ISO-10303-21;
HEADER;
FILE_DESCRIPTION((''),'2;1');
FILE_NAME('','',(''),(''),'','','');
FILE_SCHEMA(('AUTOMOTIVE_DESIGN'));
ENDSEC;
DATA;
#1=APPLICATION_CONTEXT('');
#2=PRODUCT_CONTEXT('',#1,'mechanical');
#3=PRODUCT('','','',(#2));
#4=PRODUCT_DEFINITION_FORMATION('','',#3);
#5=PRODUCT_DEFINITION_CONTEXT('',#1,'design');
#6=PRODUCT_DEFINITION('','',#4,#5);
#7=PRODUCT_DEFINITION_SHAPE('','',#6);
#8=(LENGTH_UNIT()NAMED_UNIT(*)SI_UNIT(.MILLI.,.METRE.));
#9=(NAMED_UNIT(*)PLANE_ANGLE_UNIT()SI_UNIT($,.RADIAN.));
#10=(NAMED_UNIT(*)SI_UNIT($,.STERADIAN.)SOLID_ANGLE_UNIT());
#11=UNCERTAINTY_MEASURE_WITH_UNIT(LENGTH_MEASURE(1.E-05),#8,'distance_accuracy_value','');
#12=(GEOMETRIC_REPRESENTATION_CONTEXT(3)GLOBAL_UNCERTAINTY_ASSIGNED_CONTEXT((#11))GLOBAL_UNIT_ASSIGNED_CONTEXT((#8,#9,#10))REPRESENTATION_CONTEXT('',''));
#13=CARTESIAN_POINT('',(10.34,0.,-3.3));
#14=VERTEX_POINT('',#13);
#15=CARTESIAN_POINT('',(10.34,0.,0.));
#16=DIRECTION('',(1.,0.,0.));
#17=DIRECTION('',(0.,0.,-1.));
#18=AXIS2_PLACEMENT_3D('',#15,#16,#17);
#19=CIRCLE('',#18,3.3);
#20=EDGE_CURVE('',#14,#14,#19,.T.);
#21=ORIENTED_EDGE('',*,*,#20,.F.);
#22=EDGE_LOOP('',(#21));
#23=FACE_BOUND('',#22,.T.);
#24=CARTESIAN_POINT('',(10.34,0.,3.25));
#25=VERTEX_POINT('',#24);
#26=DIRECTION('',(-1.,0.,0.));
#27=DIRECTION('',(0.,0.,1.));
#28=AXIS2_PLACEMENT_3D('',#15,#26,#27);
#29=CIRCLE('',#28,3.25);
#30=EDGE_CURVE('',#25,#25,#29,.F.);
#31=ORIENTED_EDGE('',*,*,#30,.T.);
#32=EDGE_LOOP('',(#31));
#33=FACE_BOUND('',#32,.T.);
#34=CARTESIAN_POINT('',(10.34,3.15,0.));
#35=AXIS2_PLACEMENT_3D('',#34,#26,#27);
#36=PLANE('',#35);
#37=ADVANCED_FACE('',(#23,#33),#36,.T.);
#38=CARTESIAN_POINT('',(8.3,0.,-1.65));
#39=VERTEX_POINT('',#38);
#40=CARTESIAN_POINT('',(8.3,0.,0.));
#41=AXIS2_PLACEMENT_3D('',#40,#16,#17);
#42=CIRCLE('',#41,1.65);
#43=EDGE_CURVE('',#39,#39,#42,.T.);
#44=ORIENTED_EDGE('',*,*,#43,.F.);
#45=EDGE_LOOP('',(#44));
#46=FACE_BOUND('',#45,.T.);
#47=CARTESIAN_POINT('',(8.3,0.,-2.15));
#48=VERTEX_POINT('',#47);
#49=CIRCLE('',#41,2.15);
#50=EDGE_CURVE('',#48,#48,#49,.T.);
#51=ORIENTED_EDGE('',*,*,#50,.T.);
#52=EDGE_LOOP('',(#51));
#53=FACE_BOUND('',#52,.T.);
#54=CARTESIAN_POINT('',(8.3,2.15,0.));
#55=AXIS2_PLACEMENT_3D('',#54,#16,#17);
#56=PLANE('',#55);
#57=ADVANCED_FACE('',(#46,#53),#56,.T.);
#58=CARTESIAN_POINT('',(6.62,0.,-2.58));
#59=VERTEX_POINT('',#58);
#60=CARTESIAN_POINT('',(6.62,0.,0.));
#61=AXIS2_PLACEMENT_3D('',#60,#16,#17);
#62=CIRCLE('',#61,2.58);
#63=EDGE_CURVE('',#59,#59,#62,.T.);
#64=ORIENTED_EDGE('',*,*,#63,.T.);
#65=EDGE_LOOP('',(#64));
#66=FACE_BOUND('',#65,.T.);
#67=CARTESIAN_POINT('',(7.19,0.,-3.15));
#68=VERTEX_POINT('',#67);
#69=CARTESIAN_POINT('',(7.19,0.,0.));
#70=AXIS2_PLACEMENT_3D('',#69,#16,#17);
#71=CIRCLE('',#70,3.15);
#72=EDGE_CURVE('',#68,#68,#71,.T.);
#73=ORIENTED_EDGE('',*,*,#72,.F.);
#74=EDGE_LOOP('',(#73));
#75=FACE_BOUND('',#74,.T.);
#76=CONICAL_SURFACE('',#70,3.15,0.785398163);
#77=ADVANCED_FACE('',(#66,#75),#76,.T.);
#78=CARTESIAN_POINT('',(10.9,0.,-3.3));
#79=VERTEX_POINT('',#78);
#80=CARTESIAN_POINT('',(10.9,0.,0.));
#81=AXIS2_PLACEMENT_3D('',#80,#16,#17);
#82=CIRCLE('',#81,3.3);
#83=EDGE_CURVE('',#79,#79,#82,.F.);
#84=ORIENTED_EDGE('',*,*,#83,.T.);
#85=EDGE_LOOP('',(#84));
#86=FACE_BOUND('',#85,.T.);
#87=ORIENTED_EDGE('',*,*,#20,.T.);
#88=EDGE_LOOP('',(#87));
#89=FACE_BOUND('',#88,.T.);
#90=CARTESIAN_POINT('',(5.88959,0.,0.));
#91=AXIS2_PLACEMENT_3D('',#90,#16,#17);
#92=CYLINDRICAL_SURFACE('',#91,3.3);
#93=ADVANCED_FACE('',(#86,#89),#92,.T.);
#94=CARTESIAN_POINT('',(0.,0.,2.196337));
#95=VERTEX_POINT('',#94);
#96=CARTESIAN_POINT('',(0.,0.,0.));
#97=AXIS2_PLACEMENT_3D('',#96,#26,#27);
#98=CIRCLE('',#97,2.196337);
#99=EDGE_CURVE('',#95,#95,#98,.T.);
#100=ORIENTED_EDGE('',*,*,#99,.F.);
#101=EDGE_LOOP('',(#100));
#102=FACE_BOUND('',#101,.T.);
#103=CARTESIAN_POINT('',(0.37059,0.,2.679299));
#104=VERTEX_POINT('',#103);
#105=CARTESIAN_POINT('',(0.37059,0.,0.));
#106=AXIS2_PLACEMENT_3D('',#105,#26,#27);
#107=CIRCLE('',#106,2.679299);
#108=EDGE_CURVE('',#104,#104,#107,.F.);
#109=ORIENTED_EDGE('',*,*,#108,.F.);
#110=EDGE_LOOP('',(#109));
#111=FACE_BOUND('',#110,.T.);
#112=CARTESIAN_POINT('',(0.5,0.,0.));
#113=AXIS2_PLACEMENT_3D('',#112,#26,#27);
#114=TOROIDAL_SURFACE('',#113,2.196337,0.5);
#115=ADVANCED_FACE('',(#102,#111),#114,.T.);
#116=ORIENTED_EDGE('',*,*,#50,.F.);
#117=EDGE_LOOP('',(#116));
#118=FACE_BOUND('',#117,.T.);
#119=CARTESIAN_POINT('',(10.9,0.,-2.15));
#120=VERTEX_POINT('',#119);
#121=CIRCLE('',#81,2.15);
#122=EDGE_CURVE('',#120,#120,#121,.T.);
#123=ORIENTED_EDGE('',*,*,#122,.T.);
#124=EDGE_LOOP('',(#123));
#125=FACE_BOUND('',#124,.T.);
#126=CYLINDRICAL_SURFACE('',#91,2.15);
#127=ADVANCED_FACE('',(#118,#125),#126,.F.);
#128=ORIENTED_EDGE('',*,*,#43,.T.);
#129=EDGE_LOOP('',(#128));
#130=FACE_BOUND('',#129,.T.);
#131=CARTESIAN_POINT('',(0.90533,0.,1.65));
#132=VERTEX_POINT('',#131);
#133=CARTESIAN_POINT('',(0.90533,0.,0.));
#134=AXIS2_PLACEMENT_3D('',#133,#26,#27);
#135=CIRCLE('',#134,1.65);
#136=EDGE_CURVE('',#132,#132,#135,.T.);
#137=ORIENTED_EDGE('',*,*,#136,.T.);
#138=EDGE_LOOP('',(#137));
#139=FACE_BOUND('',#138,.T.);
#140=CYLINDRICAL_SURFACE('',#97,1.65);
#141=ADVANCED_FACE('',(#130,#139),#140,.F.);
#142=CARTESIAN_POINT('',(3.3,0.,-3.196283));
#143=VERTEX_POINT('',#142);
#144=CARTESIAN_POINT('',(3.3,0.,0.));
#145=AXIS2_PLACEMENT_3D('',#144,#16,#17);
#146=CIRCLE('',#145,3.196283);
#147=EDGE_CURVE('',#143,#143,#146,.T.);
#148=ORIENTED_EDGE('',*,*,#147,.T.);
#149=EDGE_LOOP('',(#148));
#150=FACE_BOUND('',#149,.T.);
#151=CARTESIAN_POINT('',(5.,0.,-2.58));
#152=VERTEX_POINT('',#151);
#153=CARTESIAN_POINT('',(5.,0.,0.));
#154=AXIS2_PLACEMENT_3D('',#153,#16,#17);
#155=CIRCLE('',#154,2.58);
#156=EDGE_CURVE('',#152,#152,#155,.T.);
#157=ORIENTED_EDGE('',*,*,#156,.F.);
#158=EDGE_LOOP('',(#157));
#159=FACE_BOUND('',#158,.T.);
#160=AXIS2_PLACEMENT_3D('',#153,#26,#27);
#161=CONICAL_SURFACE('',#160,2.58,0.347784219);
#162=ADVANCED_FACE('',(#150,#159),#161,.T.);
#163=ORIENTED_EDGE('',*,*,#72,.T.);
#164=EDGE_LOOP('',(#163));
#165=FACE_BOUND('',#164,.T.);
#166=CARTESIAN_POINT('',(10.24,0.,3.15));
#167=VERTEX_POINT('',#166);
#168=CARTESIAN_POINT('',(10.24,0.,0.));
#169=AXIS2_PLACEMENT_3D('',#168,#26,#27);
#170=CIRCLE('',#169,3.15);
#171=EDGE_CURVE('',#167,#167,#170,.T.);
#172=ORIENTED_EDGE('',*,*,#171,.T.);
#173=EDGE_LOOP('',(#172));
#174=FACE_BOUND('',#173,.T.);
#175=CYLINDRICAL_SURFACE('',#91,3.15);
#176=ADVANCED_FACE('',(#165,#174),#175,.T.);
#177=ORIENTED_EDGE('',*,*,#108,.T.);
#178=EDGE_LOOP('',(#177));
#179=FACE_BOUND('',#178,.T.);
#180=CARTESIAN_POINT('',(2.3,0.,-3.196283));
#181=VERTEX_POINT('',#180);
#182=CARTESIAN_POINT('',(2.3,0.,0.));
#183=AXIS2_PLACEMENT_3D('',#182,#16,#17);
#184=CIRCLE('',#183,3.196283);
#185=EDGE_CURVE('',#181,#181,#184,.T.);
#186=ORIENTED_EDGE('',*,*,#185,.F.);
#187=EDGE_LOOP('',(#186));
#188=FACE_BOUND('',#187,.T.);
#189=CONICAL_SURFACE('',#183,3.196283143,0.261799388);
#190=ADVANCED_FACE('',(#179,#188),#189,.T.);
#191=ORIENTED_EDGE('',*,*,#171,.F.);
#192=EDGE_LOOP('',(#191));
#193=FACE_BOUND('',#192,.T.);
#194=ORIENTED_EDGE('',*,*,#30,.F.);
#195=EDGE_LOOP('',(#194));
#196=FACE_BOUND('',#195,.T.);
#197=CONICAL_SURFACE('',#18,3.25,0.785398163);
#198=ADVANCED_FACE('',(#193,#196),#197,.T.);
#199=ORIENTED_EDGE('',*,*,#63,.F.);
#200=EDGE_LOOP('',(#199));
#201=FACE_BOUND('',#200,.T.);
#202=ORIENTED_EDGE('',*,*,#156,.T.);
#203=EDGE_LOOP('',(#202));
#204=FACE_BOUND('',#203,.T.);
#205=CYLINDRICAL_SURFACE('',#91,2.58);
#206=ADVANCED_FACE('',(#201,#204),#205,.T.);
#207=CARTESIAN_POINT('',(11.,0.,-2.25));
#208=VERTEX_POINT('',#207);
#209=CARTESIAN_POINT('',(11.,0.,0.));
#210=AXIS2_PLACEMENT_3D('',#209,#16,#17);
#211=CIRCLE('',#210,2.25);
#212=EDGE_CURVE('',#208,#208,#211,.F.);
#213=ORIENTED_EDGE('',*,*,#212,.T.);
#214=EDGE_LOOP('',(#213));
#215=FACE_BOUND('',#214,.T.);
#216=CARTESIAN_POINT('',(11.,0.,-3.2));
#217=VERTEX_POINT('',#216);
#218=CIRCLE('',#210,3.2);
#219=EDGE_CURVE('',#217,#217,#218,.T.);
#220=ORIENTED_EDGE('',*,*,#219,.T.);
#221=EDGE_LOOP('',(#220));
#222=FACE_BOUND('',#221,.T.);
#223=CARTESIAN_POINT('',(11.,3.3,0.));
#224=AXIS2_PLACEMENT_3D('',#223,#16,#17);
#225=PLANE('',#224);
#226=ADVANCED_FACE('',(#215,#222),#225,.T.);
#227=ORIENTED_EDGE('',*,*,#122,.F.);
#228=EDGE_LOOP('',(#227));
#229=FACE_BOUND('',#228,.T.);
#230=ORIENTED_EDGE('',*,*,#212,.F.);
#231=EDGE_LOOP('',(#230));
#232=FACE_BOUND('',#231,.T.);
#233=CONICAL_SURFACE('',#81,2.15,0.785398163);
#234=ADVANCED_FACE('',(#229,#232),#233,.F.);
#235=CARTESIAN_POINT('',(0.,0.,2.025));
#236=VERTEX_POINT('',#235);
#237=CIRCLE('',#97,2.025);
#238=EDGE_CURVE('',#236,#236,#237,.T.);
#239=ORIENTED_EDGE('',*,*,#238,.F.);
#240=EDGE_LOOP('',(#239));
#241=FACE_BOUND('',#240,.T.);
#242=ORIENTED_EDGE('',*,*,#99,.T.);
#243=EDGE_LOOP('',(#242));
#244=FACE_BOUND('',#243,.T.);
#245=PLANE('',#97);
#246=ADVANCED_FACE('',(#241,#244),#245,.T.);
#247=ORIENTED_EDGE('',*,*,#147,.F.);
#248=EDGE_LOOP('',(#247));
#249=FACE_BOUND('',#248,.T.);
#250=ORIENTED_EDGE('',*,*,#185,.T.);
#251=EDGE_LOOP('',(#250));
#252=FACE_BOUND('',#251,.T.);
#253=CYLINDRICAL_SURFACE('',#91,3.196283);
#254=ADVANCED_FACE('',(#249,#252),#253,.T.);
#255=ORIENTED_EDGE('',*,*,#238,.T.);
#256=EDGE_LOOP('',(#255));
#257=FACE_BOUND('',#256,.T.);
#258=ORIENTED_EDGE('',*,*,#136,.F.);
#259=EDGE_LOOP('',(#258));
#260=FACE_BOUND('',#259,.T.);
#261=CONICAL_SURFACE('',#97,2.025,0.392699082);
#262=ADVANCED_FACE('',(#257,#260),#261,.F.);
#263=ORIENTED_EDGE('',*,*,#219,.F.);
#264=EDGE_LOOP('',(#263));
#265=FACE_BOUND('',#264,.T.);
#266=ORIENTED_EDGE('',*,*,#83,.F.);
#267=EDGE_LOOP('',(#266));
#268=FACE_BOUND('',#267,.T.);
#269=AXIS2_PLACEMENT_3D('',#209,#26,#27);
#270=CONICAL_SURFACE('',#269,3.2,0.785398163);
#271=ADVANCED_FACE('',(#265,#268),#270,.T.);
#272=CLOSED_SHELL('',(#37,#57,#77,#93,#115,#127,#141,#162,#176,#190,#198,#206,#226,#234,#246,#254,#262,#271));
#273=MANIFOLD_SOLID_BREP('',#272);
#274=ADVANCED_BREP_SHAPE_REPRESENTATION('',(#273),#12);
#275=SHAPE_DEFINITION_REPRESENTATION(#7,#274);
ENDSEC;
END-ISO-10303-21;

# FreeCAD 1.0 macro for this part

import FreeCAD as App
import Part
import Sketcher
from FreeCAD import Vector
Q = App.Units.Quantity


def edges_at(feature, points):
    """Names of the edges that pass closest to the given points."""
    edges = feature.Shape.Edges
    near = lambda p: min(range(len(edges)), key=lambda i: edges[i].distToShape(Part.Vertex(*p))[0])
    return sorted({f"Edge{near(p) + 1}" for p in points})

doc = App.newDocument("Part")
body = doc.addObject("PartDesign::Body", "Body")

# Sketch on XY plane
sketch1 = body.newObject("Sketcher::SketchObject", "Sketch")
sketch1.AttachmentSupport = (doc.getObject("XY_Plane"), [""])
sketch1.MapMode = "FlatFace"
sketch1.addGeometry([
    Part.LineSegment(Vector(0, 0, 0), Vector(8.3, 0, 0)),  # 0
    Part.LineSegment(Vector(8.3, 0, 0), Vector(8.3, 2.15, 0)),  # 1
    Part.LineSegment(Vector(8.3, 2.15, 0), Vector(11, 2.15, 0)),  # 2
    Part.LineSegment(Vector(11, 2.15, 0), Vector(11, 3.3, 0)),  # 3
    Part.LineSegment(Vector(11, 3.3, 0), Vector(10.34, 3.3, 0)),  # 4
    Part.LineSegment(Vector(10.34, 3.3, 0), Vector(10.34, 3.15, 0)),  # 5
    Part.LineSegment(Vector(10.34, 3.15, 0), Vector(7.19, 3.15, 0)),  # 6
    Part.LineSegment(Vector(7.19, 3.15, 0), Vector(6.62, 2.58, 0)),  # 7
    Part.LineSegment(Vector(6.62, 2.58, 0), Vector(5, 2.58, 0)),  # 8
    Part.LineSegment(Vector(5, 2.58, 0), Vector(3.3, 3.196283, 0)),  # 9
    Part.LineSegment(Vector(3.3, 3.196283, 0), Vector(2.3, 3.196283, 0)),  # 10
    Part.LineSegment(Vector(2.3, 3.196283, 0), Vector(0, 2.58, 0)),  # 11
    Part.LineSegment(Vector(0, 2.58, 0), Vector(0, 0, 0)),  # 12
], False)
sketch1.addConstraint([
    Sketcher.Constraint("Coincident", 0, 2, 1, 1),
    Sketcher.Constraint("Coincident", 1, 2, 2, 1),
    Sketcher.Constraint("Coincident", 2, 2, 3, 1),
    Sketcher.Constraint("Coincident", 3, 2, 4, 1),
    Sketcher.Constraint("Coincident", 4, 2, 5, 1),
    Sketcher.Constraint("Coincident", 5, 2, 6, 1),
    Sketcher.Constraint("Coincident", 6, 2, 7, 1),
    Sketcher.Constraint("Coincident", 7, 2, 8, 1),
    Sketcher.Constraint("Coincident", 8, 2, 9, 1),
    Sketcher.Constraint("Coincident", 9, 2, 10, 1),
    Sketcher.Constraint("Coincident", 10, 2, 11, 1),
    Sketcher.Constraint("Coincident", 11, 2, 12, 1),
    Sketcher.Constraint("Coincident", 12, 2, 0, 1),
    Sketcher.Constraint("Horizontal", 0),
    Sketcher.Constraint("Vertical", 1),
    Sketcher.Constraint("Horizontal", 2),
    Sketcher.Constraint("Vertical", 3),
    Sketcher.Constraint("Horizontal", 4),
    Sketcher.Constraint("Vertical", 5),
    Sketcher.Constraint("Horizontal", 6),
    Sketcher.Constraint("Horizontal", 8),
    Sketcher.Constraint("Horizontal", 10),
    Sketcher.Constraint("Vertical", 12),
    Sketcher.Constraint("Coincident", 12, 2, -1, 1),
    Sketcher.Constraint("Horizontal", 8, 2, 11, 2),
    Sketcher.Constraint("DistanceX", 10, 2, 10, 1, Q("1 mm")),
    Sketcher.Constraint("Angle", 7, Q("-135 deg")),
    Sketcher.Constraint("Angle", 11, Q("-165 deg")),
    Sketcher.Constraint("DistanceX", 0, 1, 0, 2, Q("8.3 mm")),
    Sketcher.Constraint("DistanceX", 2, 1, 2, 2, Q("2.7 mm")),
    Sketcher.Constraint("DistanceX", -1, 1, 8, 2, Q("5 mm")),
    Sketcher.Constraint("DistanceY", 2, 2, 5, 2, Q("1 mm")),
    Sketcher.Constraint("DistanceX", 9, 2, 1, 2, Q("5 mm")),
    Sketcher.Constraint("DistanceX", 4, 2, 4, 1, Q("0.66 mm")),
    Sketcher.Constraint("DistanceX", 6, 2, 6, 1, Q("3.15 mm")),
    Sketcher.Constraint("DistanceX", 8, 2, 8, 1, Q("1.62 mm")),
    Sketcher.Constraint("DistanceY", 1, 1, 1, 2, Q("2.15 mm")),
    Sketcher.Constraint("DistanceY", 3, 1, 3, 2, Q("1.15 mm")),
])
revolution = body.newObject("PartDesign::Revolution", "Revolution")
revolution.Profile = sketch1
revolution.ReferenceAxis = (sketch1, ["H_Axis"])
revolution.Angle = 360

# Sketch on YZ plane
sketch2 = body.newObject("Sketcher::SketchObject", "Sketch001")
sketch2.AttachmentSupport = (doc.getObject("YZ_Plane"), [""])
sketch2.MapMode = "FlatFace"
sketch2.addGeometry(Part.Circle(Vector(0, 0, 0), Vector(0, 0, 1), 1.65), False)
sketch2.addConstraint([
    Sketcher.Constraint("Coincident", 0, 3, -1, 1),
    Sketcher.Constraint("Diameter", 0, Q("3.3 mm")),
])
doc.recompute()
hole = body.newObject("PartDesign::Hole", "Hole")
hole.Profile = sketch2
hole.ThreadType = "None"
hole.Diameter = 3.3
hole.DepthType = "ThroughAll"
hole.HoleCutType = "Countersink"
hole.HoleCutDiameter = 4.05
hole.HoleCutCountersinkAngle = 45
hole.Reversed = True
doc.recompute()

fillet = body.newObject("PartDesign::Fillet", "Fillet")
fillet.Base = (hole, edges_at(hole, [(0, 0, 2.58)]))
fillet.Radius = 0.5
doc.recompute()

chamfer = body.newObject("PartDesign::Chamfer", "Chamfer")
chamfer.Base = (fillet, edges_at(fillet, [(11, 0, 2.15), (11, 0, 3.3), (10.34, 0, 3.15)]))
chamfer.Size = 0.1

doc.recompute()
